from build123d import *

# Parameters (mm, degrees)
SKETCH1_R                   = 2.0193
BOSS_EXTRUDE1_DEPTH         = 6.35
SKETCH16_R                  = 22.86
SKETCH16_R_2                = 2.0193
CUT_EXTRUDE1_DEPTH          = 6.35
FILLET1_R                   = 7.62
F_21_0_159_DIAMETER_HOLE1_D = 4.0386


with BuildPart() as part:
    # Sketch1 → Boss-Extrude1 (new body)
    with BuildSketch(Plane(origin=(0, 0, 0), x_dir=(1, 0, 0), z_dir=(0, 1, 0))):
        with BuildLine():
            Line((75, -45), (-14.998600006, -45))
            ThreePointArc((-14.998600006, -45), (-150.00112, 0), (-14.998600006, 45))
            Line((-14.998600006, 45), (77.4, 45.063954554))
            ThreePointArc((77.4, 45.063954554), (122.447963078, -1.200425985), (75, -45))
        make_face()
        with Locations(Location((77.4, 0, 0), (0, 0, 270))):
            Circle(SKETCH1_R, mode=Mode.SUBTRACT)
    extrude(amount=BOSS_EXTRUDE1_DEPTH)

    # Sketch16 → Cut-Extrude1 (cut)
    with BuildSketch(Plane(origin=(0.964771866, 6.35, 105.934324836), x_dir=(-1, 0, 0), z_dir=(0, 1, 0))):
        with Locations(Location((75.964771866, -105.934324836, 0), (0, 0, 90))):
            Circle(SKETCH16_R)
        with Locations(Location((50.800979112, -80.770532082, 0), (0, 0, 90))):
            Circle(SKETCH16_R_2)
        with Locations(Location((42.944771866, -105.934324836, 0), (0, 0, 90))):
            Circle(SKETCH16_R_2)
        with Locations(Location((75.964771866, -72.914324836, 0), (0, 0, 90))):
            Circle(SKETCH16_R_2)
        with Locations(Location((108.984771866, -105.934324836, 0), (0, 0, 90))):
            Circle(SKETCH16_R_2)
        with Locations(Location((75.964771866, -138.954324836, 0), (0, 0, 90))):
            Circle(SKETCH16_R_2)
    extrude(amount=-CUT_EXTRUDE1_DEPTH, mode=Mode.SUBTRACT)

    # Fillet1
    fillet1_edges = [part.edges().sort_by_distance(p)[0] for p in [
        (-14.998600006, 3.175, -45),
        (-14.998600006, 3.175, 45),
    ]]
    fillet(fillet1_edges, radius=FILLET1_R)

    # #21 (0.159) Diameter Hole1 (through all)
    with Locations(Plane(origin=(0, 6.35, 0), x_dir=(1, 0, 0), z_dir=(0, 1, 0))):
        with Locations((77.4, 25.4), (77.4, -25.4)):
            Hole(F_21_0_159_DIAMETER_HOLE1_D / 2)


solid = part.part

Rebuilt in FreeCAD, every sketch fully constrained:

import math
import FreeCAD as App
import Part
import Sketcher
Q = App.Units.Quantity


def edges_at(feature, points):
    """Names of the edges that pass closest to the given points."""
    edges = feature.Shape.Edges
    near = lambda p: min(range(len(edges)), key=lambda i: edges[i].distToShape(Part.Vertex(*p))[0])
    return sorted({f"Edge{near(p) + 1}" for p in points})

doc = App.newDocument("Part")
body = doc.addObject("PartDesign::Body", "Body")

# Sketch on XZ plane
sketch1 = body.newObject("Sketcher::SketchObject", "Sketch")
sketch1.AttachmentSupport = (doc.getObject("XZ_Plane"), [""])
sketch1.MapMode = "FlatFace"
sketch1.addGeometry(Part.LineSegment(App.Vector(-15, 45, 0), App.Vector(75, 45, 0)), False)
sketch1.addGeometry(Part.ArcOfCircle(Part.Circle(App.Vector(77.4, 0, 0), App.Vector(0, 0, 1), 45.1), math.radians(-90), math.radians(93)), False)
sketch1.addGeometry(Part.LineSegment(App.Vector(77.4, -45.1, 0), App.Vector(-15, -45, 0)), False)
sketch1.addGeometry(Part.ArcOfCircle(Part.Circle(App.Vector(-75, 0, 0), App.Vector(0, 0, 1), 75), math.radians(37), math.radians(323)), False)
sketch1.addGeometry(Part.Circle(App.Vector(77.4, 0, 0), App.Vector(0, 0, 1), 2), False)
sketch1.addConstraint(Sketcher.Constraint("Coincident", 0, 2, 1, 2))
sketch1.addConstraint(Sketcher.Constraint("Coincident", 1, 1, 2, 1))
sketch1.addConstraint(Sketcher.Constraint("Coincident", 2, 2, 3, 2))
sketch1.addConstraint(Sketcher.Constraint("Coincident", 3, 1, 0, 1))
sketch1.addConstraint(Sketcher.Constraint("Horizontal", 0))
sketch1.addConstraint(Sketcher.Constraint("Coincident", 4, 3, 1, 3))
sketch1.addConstraint(Sketcher.Constraint("Symmetric", 2, 2, 3, 1, -1))
sketch1.addConstraint(Sketcher.Constraint("PointOnObject", 1, 3, -1))
sketch1.addConstraint(Sketcher.Constraint("Vertical", 4, 3, 1, 1))
sketch1.addConstraint(Sketcher.Constraint("Diameter", 4, Q("0.159 in")))
sketch1.addConstraint(Sketcher.Constraint("DistanceX", 3, 3, 1, 3, Q("6 in")))
sketch1.addConstraint(Sketcher.Constraint("Radius", 3, Q("2.9528 in")))
sketch1.addConstraint(Sketcher.Constraint("DistanceX", 0, 1, 0, 2, Q("89.9986 mm")))
sketch1.addConstraint(Sketcher.Constraint("Radius", 1, Q("45.063955 mm")))
sketch1.addConstraint(Sketcher.Constraint("DistanceX", -1, 1, 1, 3, Q("77.4 mm")))
pad1 = body.newObject("PartDesign::Pad", "Pad")
pad1.Profile = sketch1
pad1.Length = Q("0.25 in")
pad1.Reversed = True

# Sketch on XZ plane
sketch2 = body.newObject("Sketcher::SketchObject", "Sketch001")
sketch2.AttachmentSupport = (doc.getObject("XZ_Plane"), [""])
sketch2.MapMode = "FlatFace"
sketch2.AttachmentOffset = App.Placement(App.Vector(0, 0, -0.25 * 25.4), App.Rotation())
sketch2.addGeometry(Part.Circle(App.Vector(-75, 0, 0), App.Vector(0, 0, 1), 22.9), False)
sketch2.addGeometry(Part.Circle(App.Vector(-49.8, 25.2, 0), App.Vector(0, 0, 1), 2), False)
sketch2.addGeometry(Part.Circle(App.Vector(-42, 0, 0), App.Vector(0, 0, 1), 2), False)
sketch2.addGeometry(Part.Circle(App.Vector(-75, 33, 0), App.Vector(0, 0, 1), 2), False)
sketch2.addGeometry(Part.Circle(App.Vector(-108, 0, 0), App.Vector(0, 0, 1), 2), False)
sketch2.addGeometry(Part.Circle(App.Vector(-75, -33, 0), App.Vector(0, 0, 1), 2), False)
sketch2.addConstraint(Sketcher.Constraint("Equal", 1, 2))
sketch2.addConstraint(Sketcher.Constraint("Equal", 2, 3))
sketch2.addConstraint(Sketcher.Constraint("Equal", 3, 4))
sketch2.addConstraint(Sketcher.Constraint("Equal", 4, 5))
sketch2.addConstraint(Sketcher.Constraint("Symmetric", 3, 3, 5, 3, -1))
sketch2.addConstraint(Sketcher.Constraint("PointOnObject", 0, 3, -1))
sketch2.addConstraint(Sketcher.Constraint("PointOnObject", 2, 3, -1))
sketch2.addConstraint(Sketcher.Constraint("PointOnObject", 4, 3, -1))
sketch2.addConstraint(Sketcher.Constraint("Vertical", 0, 3, 3, 3))
sketch2.addConstraint(Sketcher.Constraint("Diameter", 0, Q("1.8 in")))
sketch2.addConstraint(Sketcher.Constraint("Diameter", 1, Q("0.159 in")))
sketch2.addConstraint(Sketcher.Constraint("DistanceY", -1, 1, 3, 3, Q("1.3 in")))
sketch2.addConstraint(Sketcher.Constraint("DistanceX", 0, 3, 2, 3, Q("1.3 in")))
sketch2.addConstraint(Sketcher.Constraint("DistanceX", 4, 3, 0, 3, Q("1.3 in")))
sketch2.addConstraint(Sketcher.Constraint("DistanceX", 0, 3, -1, 1, Q("75 mm")))
sketch2.addConstraint(Sketcher.Constraint("DistanceX", 1, 3, -1, 1, Q("49.836207 mm")))
sketch2.addConstraint(Sketcher.Constraint("DistanceY", -1, 1, 1, 3, Q("25.163793 mm")))
pocket1 = body.newObject("PartDesign::Pocket", "Pocket")
pocket1.Profile = sketch2
pocket1.Length = Q("0.25 in")
pocket1.Reversed = True
doc.recompute()

fillet = body.newObject("PartDesign::Fillet", "Fillet")
fillet.Base = (pocket1, edges_at(pocket1, [(-14.999, 3.175, -45), (-14.999, 3.175, 45)]))
fillet.Radius = Q("0.3 in")

# Sketch on XZ plane
sketch3 = body.newObject("Sketcher::SketchObject", "Sketch002")
sketch3.AttachmentSupport = (doc.getObject("XZ_Plane"), [""])
sketch3.MapMode = "FlatFace"
sketch3.AttachmentOffset = App.Placement(App.Vector(0, 0, -0.25 * 25.4), App.Rotation())
sketch3.addGeometry(Part.Circle(App.Vector(77.4, -25.4, 0), App.Vector(0, 0, 1), 2), False)
sketch3.addGeometry(Part.Circle(App.Vector(77.4, 25.4, 0), App.Vector(0, 0, 1), 2), False)
sketch3.addConstraint(Sketcher.Constraint("Equal", 0, 1))
sketch3.addConstraint(Sketcher.Constraint("Symmetric", 0, 3, 1, 3, -1))
sketch3.addConstraint(Sketcher.Constraint("Diameter", 0, Q("0.159 in")))
sketch3.addConstraint(Sketcher.Constraint("DistanceY", 0, 3, -1, 1, Q("1 in")))
sketch3.addConstraint(Sketcher.Constraint("DistanceX", -1, 1, 0, 3, Q("77.4 mm")))
doc.recompute()
hole = body.newObject("PartDesign::Hole", "Hole")
hole.Profile = sketch3
hole.ThreadType = "None"
hole.Diameter = Q("0.159 in")
hole.DepthType = "ThroughAll"
hole.Reversed = True

doc.recompute()
